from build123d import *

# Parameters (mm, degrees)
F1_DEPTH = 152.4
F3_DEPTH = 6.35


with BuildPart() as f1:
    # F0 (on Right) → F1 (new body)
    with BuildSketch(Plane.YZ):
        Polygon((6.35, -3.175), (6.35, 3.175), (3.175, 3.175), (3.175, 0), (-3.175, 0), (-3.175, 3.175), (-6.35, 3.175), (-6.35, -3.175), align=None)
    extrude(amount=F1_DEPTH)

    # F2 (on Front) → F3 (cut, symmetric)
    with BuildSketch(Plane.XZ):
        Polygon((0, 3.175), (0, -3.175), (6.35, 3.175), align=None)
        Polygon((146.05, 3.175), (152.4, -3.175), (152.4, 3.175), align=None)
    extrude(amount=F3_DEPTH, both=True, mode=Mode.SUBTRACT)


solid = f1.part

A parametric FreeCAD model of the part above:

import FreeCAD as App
import Part
import Sketcher
from FreeCAD import Vector
Q = App.Units.Quantity

doc = App.newDocument("Part")
body = doc.addObject("PartDesign::Body", "Body")

# Sketch on YZ plane
sketch1 = doc.addObject("Sketcher::SketchObject", "Sketch")
body.addObject(sketch1)
sketch1.AttachmentSupport = (doc.YZ_Plane, [""])
sketch1.MapMode = "FlatFace"
sketch1.addGeometry([
    Part.LineSegment(Vector(6.3, -3.2, 0), Vector(6.3, 3.2, 0)),  # 0
    Part.LineSegment(Vector(6.3, 3.2, 0), Vector(3.2, 3.2, 0)),  # 1
    Part.LineSegment(Vector(3.2, 3.2, 0), Vector(3.2, 0, 0)),  # 2
    Part.LineSegment(Vector(3.2, 0, 0), Vector(-3.2, 0, 0)),  # 3
    Part.LineSegment(Vector(-3.2, 0, 0), Vector(-3.2, 3.2, 0)),  # 4
    Part.LineSegment(Vector(-3.2, 3.2, 0), Vector(-6.3, 3.2, 0)),  # 5
    Part.LineSegment(Vector(-6.3, 3.2, 0), Vector(-6.3, -3.2, 0)),  # 6
    Part.LineSegment(Vector(-6.3, -3.2, 0), Vector(6.3, -3.2, 0)),  # 7
], False)
sketch1.addConstraint([
    Sketcher.Constraint("Coincident", 0, 2, 1, 1),
    Sketcher.Constraint("Coincident", 1, 2, 2, 1),
    Sketcher.Constraint("Coincident", 2, 2, 3, 1),
    Sketcher.Constraint("Coincident", 3, 2, 4, 1),
    Sketcher.Constraint("Coincident", 4, 2, 5, 1),
    Sketcher.Constraint("Coincident", 5, 2, 6, 1),
    Sketcher.Constraint("Coincident", 6, 2, 7, 1),
    Sketcher.Constraint("Coincident", 7, 2, 0, 1),
    Sketcher.Constraint("Vertical", 0),
    Sketcher.Constraint("Horizontal", 1),
    Sketcher.Constraint("Vertical", 2),
    Sketcher.Constraint("Horizontal", 3),
    Sketcher.Constraint("Vertical", 4),
    Sketcher.Constraint("Horizontal", 5),
    Sketcher.Constraint("Vertical", 6),
    Sketcher.Constraint("Horizontal", 7),
    Sketcher.Constraint("Symmetric", 2, 2, 3, 2, -1, 1),
    Sketcher.Constraint("Symmetric", 0, 2, 6, 2, -1, 1),
    Sketcher.Constraint("Horizontal", 1, 2, 4, 2),
    Sketcher.Constraint("Equal", 3, 0),
    Sketcher.Constraint("Equal", 5, 2),
    Sketcher.Constraint("DistanceX", 7, 1, 7, 2, Q("0.5 in")),
])
pad1 = doc.addObject("PartDesign::Pad", "Pad")
body.addObject(pad1)
pad1.Profile = sketch1
pad1.Length = Q("6 in")

# Sketch on XZ plane
sketch2 = doc.addObject("Sketcher::SketchObject", "Sketch001")
body.addObject(sketch2)
sketch2.AttachmentSupport = (doc.XZ_Plane, [""])
sketch2.MapMode = "FlatFace"
sketch2.addGeometry([
    Part.LineSegment(Vector(0, 3, 0), Vector(0, -3, 0)),  # 0
    Part.LineSegment(Vector(0, -3, 0), Vector(6, 3, 0)),  # 1
    Part.LineSegment(Vector(6, 3, 0), Vector(0, 3, 0)),  # 2
    Part.LineSegment(Vector(146, 3, 0), Vector(152, -3, 0)),  # 3
    Part.LineSegment(Vector(152, -3, 0), Vector(152, 3, 0)),  # 4
    Part.LineSegment(Vector(152, 3, 0), Vector(146, 3, 0)),  # 5
], False)
sketch2.addConstraint([
    Sketcher.Constraint("Coincident", 0, 2, 1, 1),
    Sketcher.Constraint("Coincident", 1, 2, 2, 1),
    Sketcher.Constraint("Coincident", 2, 2, 0, 1),
    Sketcher.Constraint("Coincident", 3, 2, 4, 1),
    Sketcher.Constraint("Coincident", 4, 2, 5, 1),
    Sketcher.Constraint("Coincident", 5, 2, 3, 1),
    Sketcher.Constraint("Vertical", 0),
    Sketcher.Constraint("Horizontal", 2),
    Sketcher.Constraint("Vertical", 4),
    Sketcher.Constraint("Horizontal", 5),
    Sketcher.Constraint("Symmetric", 0, 2, 2, 2, -1, 1),
    Sketcher.Constraint("Perpendicular", 1, 3),
    Sketcher.Constraint("Horizontal", 0, 2, 3, 2),
    Sketcher.Constraint("Horizontal", 2, 2, 4, 2),
    Sketcher.Constraint("Equal", 2, 5),
    Sketcher.Constraint("DistanceX", -1, 1, 3, 2, Q("6 in")),
    Sketcher.Constraint("DistanceX", 2, 2, 2, 1, Q("0.25 in")),
])
pocket1 = doc.addObject("PartDesign::Pocket", "Pocket")
body.addObject(pocket1)
pocket1.Profile = sketch2
pocket1.Length = Q("0.5 in")
pocket1.Midplane = True

doc.recompute()
